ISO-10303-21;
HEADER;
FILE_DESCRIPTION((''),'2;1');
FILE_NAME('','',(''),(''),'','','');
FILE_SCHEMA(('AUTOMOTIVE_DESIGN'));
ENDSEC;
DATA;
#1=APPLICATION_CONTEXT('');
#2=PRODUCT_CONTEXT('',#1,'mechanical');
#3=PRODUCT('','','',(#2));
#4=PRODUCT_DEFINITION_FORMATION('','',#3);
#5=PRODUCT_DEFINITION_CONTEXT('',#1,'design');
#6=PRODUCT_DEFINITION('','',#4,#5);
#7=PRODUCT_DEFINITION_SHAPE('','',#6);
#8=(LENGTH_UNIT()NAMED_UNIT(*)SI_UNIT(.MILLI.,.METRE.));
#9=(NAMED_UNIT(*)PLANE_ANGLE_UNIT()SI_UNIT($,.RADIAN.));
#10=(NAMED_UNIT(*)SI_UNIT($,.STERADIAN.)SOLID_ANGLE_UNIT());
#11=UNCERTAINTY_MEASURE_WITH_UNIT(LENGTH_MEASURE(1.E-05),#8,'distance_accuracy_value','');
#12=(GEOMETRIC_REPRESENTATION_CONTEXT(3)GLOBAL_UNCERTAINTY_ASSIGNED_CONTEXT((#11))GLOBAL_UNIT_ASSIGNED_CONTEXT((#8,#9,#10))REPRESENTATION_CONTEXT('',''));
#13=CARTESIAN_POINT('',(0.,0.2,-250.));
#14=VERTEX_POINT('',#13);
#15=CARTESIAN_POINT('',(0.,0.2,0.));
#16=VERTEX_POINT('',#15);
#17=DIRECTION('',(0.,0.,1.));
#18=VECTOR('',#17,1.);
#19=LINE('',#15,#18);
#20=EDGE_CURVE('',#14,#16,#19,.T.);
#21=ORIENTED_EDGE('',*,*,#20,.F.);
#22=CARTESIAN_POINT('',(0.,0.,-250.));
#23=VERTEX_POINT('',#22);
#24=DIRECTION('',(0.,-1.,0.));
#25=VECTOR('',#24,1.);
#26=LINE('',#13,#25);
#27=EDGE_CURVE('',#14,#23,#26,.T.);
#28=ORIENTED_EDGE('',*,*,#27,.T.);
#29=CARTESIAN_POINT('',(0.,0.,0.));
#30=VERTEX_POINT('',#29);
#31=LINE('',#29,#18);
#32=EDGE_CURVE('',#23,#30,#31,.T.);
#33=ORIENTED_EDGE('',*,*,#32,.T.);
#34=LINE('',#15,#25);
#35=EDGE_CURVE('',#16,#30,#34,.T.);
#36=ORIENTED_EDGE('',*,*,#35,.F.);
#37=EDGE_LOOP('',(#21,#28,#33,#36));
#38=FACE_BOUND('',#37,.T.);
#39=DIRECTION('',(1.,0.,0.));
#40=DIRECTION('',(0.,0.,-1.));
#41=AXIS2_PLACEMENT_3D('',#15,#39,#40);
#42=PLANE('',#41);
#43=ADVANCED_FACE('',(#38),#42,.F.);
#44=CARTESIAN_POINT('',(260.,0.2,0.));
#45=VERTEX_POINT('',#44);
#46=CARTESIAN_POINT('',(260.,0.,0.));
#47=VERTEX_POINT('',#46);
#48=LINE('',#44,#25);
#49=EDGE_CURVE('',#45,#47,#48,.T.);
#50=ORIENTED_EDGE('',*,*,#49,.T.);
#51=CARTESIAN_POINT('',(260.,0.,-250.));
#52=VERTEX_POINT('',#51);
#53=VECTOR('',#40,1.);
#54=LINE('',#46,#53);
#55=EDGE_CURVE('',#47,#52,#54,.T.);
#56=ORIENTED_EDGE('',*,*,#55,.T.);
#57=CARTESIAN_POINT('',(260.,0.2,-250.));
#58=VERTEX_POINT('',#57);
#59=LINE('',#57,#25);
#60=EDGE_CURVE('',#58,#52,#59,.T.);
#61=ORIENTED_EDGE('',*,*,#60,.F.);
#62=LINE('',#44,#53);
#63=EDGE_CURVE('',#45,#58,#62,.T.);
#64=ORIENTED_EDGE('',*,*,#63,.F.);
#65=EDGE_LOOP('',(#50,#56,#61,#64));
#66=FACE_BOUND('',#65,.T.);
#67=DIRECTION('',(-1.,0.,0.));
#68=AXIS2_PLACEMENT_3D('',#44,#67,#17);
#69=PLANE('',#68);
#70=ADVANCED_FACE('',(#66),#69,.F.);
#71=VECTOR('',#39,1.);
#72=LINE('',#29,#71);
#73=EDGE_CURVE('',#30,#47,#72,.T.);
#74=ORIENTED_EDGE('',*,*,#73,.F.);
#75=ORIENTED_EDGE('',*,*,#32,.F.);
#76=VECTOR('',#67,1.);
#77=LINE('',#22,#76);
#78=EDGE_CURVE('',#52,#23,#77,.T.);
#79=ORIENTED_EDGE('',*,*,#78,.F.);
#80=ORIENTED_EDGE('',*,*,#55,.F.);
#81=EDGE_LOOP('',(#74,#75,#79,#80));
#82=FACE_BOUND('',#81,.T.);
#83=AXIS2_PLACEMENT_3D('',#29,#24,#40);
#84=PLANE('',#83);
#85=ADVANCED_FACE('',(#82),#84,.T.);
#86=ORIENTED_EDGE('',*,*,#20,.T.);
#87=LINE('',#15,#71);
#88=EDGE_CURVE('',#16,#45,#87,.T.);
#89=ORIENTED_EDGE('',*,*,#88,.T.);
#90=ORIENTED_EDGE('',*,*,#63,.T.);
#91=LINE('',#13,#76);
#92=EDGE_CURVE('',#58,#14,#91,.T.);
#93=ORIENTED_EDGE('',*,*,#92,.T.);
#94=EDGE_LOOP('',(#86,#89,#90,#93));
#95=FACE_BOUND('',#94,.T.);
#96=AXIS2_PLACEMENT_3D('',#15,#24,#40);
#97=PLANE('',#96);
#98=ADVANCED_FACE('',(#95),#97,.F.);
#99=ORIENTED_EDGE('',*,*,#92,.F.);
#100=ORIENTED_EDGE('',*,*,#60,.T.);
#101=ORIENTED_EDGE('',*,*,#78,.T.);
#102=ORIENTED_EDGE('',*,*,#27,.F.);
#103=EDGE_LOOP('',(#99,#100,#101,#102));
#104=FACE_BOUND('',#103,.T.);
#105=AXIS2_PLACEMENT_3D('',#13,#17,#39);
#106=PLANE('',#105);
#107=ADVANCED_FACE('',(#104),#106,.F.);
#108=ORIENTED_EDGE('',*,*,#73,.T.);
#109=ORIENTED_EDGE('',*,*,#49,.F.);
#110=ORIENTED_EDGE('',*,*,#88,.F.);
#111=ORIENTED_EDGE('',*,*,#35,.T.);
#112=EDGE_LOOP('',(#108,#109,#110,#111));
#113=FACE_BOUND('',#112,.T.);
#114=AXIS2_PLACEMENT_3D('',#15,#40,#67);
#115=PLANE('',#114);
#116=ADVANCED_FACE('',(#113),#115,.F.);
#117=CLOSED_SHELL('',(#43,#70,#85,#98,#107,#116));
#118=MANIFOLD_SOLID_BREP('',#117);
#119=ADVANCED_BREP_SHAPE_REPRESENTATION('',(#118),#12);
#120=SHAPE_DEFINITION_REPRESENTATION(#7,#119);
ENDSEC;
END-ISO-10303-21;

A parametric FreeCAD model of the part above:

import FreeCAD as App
import Part
import Sketcher

doc = App.newDocument("Part")
params = doc.addObject("Spreadsheet::Sheet", "Params")
for row, (alias, value) in enumerate([
    ("sketch1_width", "260 mm"),
    ("sketch1_height", "250 mm"),
    ("pad1_length", "0.2 mm"),
], start=1):
    params.set(f"A{row}", alias)
    params.set(f"B{row}", "=" + value)
    params.setAlias(f"B{row}", alias)

body = doc.addObject("PartDesign::Body", "Body")

# Sketch on XZ plane
sketch1 = body.newObject("Sketcher::SketchObject", "Sketch")
sketch1.AttachmentSupport = (doc.getObject("XZ_Plane"), [""])
sketch1.MapMode = "FlatFace"
sketch1.addGeometry([
    Part.LineSegment(App.Vector(0, -250, 0), App.Vector(0, 0, 0)),
    Part.LineSegment(App.Vector(0, 0, 0), App.Vector(260, 0, 0)),
    Part.LineSegment(App.Vector(260, 0, 0), App.Vector(260, -250, 0)),
    Part.LineSegment(App.Vector(260, -250, 0), App.Vector(0, -250, 0)),
], False)
sketch1.addConstraint([
    Sketcher.Constraint("Coincident", 0, 2, 1, 1),
    Sketcher.Constraint("Coincident", 1, 2, 2, 1),
    Sketcher.Constraint("Coincident", 2, 2, 3, 1),
    Sketcher.Constraint("Coincident", 3, 2, 0, 1),
    Sketcher.Constraint("Vertical", 0),
    Sketcher.Constraint("Horizontal", 1),
    Sketcher.Constraint("Vertical", 2),
    Sketcher.Constraint("Horizontal", 3),
    Sketcher.Constraint("Coincident", 0, 2, -1, 1),
    Sketcher.Constraint("DistanceX", 1, 1, 1, 2, 260.0),
    Sketcher.Constraint("DistanceY", 0, 1, 0, 2, 250.0),
])
sketch1.setExpression("Constraints[9]", "Params.sketch1_width")
sketch1.setExpression("Constraints[10]", "Params.sketch1_height")
pad1 = body.newObject("PartDesign::Pad", "Pad")
pad1.Profile = sketch1
pad1.setExpression("Length", "Params.pad1_length")
pad1.Reversed = True

doc.recompute()
